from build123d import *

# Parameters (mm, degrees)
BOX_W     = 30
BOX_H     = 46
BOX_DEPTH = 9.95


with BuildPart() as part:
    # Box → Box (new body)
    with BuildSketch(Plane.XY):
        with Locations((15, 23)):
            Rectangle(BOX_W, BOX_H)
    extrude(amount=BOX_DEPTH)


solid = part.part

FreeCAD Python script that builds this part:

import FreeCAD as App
import Part
import Sketcher

doc = App.newDocument("Part")
body = doc.addObject("PartDesign::Body", "Body")

# Sketch on XY plane
sketch1 = body.newObject("Sketcher::SketchObject", "Sketch")
sketch1.AttachmentSupport = (doc.getObject("XY_Plane"), [""])
sketch1.MapMode = "FlatFace"
sketch1.addGeometry([
    Part.LineSegment(App.Vector(0, 46, 0), App.Vector(0, 0, 0)),
    Part.LineSegment(App.Vector(0, 0, 0), App.Vector(30, 0, 0)),
    Part.LineSegment(App.Vector(30, 0, 0), App.Vector(30, 46, 0)),
    Part.LineSegment(App.Vector(30, 46, 0), App.Vector(0, 46, 0)),
], False)
sketch1.addConstraint([
    Sketcher.Constraint("Coincident", 0, 2, 1, 1),
    Sketcher.Constraint("Coincident", 1, 2, 2, 1),
    Sketcher.Constraint("Coincident", 2, 2, 3, 1),
    Sketcher.Constraint("Coincident", 3, 2, 0, 1),
    Sketcher.Constraint("Vertical", 0),
    Sketcher.Constraint("Horizontal", 1),
    Sketcher.Constraint("Vertical", 2),
    Sketcher.Constraint("Horizontal", 3),
    Sketcher.Constraint("Coincident", 0, 2, -1, 1),
    Sketcher.Constraint("DistanceX", 1, 1, 1, 2, 30.0),
    Sketcher.Constraint("DistanceY", 0, 2, 0, 1, 46.0),
])
pad1 = body.newObject("PartDesign::Pad", "Pad")
pad1.Profile = sketch1
pad1.Length = 9.95

doc.recompute()
